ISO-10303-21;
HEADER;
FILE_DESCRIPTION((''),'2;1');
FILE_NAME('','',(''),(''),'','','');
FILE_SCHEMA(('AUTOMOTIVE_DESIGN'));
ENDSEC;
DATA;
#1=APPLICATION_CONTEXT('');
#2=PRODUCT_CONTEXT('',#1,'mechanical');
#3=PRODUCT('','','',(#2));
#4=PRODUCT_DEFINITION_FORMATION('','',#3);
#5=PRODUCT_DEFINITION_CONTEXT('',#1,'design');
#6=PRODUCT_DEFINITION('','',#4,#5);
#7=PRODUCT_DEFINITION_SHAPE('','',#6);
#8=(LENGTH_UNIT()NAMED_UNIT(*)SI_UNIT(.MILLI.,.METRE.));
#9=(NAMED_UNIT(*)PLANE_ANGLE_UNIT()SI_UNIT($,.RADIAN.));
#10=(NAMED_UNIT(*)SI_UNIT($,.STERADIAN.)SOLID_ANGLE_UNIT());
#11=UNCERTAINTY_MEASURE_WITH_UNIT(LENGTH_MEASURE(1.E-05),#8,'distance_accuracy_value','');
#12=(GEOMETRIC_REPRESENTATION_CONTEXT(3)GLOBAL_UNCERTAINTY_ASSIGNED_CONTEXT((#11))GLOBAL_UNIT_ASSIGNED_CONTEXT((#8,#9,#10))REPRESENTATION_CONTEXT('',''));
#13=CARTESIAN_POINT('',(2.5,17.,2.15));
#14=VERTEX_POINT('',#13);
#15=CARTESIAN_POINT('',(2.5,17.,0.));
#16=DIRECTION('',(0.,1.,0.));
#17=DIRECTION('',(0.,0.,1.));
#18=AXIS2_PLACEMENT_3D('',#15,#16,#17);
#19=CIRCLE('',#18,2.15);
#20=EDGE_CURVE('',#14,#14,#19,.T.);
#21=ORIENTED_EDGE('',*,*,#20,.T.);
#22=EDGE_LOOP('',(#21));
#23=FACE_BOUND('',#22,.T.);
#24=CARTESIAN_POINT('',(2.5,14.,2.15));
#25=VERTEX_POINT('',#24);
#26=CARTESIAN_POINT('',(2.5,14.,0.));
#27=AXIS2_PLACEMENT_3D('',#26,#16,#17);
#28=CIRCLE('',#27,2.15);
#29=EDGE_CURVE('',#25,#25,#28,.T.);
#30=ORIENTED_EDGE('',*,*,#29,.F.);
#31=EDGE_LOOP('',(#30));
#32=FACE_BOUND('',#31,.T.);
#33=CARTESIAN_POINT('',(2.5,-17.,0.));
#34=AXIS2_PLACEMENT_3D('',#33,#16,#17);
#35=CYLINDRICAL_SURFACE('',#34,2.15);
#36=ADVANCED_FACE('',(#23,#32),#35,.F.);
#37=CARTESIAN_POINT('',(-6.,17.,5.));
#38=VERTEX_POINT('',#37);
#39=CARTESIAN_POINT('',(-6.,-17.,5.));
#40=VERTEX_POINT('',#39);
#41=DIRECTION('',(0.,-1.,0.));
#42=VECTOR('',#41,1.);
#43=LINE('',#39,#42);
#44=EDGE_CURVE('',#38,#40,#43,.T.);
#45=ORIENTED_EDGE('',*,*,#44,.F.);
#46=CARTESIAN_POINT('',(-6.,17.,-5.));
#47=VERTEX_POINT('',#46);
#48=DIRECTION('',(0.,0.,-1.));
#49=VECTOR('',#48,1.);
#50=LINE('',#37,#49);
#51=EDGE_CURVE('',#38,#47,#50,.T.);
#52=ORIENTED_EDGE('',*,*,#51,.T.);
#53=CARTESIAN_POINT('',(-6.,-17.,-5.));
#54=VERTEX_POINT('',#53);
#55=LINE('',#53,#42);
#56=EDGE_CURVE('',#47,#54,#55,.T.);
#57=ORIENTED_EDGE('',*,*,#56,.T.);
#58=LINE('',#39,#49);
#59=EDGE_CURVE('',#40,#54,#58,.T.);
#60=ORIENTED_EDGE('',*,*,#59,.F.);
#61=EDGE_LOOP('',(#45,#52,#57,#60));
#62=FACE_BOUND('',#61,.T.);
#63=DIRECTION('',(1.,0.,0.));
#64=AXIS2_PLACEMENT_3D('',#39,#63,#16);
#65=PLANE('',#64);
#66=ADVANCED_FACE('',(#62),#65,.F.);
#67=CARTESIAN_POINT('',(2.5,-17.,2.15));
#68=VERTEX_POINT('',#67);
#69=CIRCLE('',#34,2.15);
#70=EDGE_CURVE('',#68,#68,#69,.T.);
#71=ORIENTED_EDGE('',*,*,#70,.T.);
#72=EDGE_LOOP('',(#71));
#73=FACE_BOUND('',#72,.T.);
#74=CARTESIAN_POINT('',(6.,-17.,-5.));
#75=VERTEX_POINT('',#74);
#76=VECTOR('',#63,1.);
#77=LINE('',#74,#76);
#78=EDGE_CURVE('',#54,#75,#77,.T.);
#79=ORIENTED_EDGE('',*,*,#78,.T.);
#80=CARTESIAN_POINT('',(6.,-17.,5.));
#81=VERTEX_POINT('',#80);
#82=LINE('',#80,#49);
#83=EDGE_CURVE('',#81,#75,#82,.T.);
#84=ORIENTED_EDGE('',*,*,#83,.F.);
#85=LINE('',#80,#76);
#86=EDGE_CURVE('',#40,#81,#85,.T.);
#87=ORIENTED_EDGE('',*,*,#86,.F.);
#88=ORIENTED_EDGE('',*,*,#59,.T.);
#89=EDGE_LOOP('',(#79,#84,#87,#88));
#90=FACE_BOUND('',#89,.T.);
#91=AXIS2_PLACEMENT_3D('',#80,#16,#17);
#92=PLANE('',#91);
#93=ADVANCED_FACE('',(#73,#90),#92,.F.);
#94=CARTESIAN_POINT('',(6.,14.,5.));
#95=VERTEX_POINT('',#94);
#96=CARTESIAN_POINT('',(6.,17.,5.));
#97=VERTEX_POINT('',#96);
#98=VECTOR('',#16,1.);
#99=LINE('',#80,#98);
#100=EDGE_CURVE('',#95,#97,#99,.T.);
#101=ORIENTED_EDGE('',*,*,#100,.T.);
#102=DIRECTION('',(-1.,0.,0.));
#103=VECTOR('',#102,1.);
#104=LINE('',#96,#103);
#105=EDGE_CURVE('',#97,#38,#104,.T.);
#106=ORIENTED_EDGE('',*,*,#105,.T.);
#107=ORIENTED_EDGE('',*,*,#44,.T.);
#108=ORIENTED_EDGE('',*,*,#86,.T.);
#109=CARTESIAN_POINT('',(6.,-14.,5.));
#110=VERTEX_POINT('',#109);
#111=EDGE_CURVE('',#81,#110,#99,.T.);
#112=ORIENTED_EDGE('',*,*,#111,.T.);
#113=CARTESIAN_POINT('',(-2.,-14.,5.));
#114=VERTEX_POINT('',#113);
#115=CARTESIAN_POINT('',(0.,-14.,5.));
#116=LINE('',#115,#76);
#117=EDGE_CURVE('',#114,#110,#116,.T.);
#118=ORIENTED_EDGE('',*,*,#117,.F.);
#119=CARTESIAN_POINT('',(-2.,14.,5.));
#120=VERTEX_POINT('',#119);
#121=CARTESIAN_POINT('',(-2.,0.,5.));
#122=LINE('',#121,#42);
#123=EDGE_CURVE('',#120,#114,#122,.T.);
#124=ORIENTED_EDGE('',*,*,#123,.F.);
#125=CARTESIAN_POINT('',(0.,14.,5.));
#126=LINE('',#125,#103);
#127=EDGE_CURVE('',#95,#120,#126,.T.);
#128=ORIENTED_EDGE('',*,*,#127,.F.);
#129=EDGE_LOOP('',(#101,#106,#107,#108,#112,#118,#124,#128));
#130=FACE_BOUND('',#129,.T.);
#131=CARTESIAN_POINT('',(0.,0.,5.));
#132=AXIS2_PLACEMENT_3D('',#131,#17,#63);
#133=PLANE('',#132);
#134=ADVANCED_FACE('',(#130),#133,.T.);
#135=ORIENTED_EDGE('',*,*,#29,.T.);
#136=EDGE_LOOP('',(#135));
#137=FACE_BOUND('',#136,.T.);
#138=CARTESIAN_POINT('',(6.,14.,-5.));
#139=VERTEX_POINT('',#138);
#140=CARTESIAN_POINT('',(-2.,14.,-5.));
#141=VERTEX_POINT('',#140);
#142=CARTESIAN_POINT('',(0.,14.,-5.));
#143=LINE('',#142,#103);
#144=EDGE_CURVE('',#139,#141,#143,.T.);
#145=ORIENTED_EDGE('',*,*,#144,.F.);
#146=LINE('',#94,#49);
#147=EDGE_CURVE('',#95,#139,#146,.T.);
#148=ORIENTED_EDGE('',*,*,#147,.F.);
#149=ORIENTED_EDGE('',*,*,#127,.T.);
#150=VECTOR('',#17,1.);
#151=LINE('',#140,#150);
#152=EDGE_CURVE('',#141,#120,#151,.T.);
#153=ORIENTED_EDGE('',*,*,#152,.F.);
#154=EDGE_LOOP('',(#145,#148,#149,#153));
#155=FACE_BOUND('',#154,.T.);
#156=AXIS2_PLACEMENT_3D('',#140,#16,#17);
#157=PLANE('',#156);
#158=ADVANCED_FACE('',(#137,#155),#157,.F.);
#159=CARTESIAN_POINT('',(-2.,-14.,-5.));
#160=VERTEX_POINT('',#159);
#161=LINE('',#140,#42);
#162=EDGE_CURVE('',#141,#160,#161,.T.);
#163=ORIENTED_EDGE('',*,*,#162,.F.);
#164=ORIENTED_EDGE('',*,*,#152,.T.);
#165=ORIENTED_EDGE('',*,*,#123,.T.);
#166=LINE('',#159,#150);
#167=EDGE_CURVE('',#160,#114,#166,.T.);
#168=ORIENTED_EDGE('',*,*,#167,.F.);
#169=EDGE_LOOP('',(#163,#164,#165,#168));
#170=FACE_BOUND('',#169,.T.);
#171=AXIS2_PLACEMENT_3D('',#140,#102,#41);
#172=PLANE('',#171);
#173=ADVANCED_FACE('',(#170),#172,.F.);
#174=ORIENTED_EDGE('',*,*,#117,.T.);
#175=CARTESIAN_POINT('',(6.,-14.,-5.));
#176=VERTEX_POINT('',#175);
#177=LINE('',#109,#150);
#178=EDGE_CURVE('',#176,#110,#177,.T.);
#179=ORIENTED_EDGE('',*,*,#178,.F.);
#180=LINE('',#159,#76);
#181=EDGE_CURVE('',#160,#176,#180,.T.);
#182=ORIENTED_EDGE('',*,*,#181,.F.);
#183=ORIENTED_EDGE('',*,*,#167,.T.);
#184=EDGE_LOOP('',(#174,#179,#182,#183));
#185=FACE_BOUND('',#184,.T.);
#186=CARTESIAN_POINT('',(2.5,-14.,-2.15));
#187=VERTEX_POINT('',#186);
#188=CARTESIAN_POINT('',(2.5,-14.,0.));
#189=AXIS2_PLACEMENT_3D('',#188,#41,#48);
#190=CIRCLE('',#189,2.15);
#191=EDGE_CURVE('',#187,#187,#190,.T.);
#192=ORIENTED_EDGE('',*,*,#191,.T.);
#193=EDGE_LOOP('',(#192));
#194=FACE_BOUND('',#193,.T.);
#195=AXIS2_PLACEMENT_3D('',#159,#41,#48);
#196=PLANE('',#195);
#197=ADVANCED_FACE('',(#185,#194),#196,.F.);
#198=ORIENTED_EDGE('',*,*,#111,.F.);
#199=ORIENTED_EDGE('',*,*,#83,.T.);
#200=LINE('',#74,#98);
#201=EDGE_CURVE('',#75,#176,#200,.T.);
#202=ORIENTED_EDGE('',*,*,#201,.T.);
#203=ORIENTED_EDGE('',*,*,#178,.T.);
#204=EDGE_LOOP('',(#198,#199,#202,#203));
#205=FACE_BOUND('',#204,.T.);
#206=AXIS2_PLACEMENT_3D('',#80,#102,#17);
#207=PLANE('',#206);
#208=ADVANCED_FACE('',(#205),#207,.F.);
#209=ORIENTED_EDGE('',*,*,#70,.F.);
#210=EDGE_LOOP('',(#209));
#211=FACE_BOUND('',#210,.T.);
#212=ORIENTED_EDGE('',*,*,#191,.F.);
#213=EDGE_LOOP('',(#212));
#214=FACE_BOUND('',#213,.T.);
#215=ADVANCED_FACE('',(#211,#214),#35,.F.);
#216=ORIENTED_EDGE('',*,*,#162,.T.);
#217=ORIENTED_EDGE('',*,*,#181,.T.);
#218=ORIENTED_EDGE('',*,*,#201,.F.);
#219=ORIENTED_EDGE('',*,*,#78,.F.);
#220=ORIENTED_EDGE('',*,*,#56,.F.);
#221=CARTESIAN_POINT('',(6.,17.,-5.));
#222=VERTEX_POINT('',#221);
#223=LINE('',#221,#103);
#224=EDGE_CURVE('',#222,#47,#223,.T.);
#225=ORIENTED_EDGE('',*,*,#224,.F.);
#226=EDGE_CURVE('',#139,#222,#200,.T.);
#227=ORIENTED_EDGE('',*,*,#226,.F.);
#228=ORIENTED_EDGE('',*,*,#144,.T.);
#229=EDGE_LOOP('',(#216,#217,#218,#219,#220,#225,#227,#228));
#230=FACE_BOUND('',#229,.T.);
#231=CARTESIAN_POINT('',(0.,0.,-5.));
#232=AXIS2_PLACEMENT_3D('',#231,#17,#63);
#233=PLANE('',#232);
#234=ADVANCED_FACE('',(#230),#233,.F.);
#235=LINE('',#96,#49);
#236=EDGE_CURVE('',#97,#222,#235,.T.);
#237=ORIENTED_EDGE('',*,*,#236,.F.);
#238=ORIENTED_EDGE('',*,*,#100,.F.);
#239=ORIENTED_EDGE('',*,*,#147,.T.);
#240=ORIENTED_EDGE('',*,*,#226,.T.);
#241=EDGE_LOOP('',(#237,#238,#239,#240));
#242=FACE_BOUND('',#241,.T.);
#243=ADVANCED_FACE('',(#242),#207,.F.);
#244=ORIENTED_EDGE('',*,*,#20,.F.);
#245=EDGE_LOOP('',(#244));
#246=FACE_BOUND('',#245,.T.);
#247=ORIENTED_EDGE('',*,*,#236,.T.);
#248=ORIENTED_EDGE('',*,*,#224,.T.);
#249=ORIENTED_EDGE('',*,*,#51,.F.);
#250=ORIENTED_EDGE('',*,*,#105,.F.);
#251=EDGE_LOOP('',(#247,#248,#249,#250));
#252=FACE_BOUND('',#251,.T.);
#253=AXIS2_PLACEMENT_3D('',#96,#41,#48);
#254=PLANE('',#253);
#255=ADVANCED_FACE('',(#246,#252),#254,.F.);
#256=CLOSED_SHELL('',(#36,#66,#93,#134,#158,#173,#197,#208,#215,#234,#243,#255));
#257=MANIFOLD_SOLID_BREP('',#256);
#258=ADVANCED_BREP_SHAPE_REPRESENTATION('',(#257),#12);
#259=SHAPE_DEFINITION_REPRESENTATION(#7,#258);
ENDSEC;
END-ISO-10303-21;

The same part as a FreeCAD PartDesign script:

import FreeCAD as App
import Part
import Sketcher
Q = App.Units.Quantity


def add_polygon(sketch, points):
    """Adds a closed chain of lines whose ends are joined by coincident constraints."""
    first, n = sketch.GeometryCount, len(points)
    for a, b in zip(points, points[1:] + points[:1]):
        sketch.addGeometry(Part.LineSegment(App.Vector(*a, 0), App.Vector(*b, 0)), False)
    for i in range(n):
        sketch.addConstraint(Sketcher.Constraint("Coincident", first + i, 2, first + (i + 1) % n, 1))

doc = App.newDocument("Part")
params = doc.addObject("Spreadsheet::Sheet", "Params")
for row, (alias, value) in enumerate([
    ("sketch1_width", "12 mm"),
    ("sketch1_height", "34 mm"),
    ("pad1_length", "10 mm"),
    ("sketch2_width", "16 mm"),
    ("sketch2_height", "28 mm"),
    ("sketch3_diameter", "4.3 mm"),
], start=1):
    params.set(f"A{row}", alias)
    params.set(f"B{row}", "=" + value)
    params.setAlias(f"B{row}", alias)

body = doc.addObject("PartDesign::Body", "Body")

# Sketch on XY plane
sketch1 = body.newObject("Sketcher::SketchObject", "Sketch")
sketch1.AttachmentSupport = (doc.getObject("XY_Plane"), [""])
sketch1.MapMode = "FlatFace"
add_polygon(sketch1, [(-6, 17), (-6, -17), (6, -17), (6, 17)])  # lines 0-3
sketch1.addConstraint(Sketcher.Constraint("Vertical", 0))
sketch1.addConstraint(Sketcher.Constraint("Horizontal", 1))
sketch1.addConstraint(Sketcher.Constraint("Vertical", 2))
sketch1.addConstraint(Sketcher.Constraint("Horizontal", 3))
sketch1.addConstraint(Sketcher.Constraint("Symmetric", 0, 2, 2, 2, -1, 1))
sketch1.addConstraint(Sketcher.Constraint("DistanceX", 1, 1, 1, 2, Q("12 mm")))
sketch1.addConstraint(Sketcher.Constraint("DistanceY", 0, 2, 0, 1, Q("34 mm")))
sketch1.setExpression("Constraints[9]", "Params.sketch1_width")
sketch1.setExpression("Constraints[10]", "Params.sketch1_height")
pad1 = body.newObject("PartDesign::Pad", "Pad")
pad1.Profile = sketch1
pad1.setExpression("Length", "Params.pad1_length")
pad1.Midplane = True

# Sketch on XY plane
sketch2 = body.newObject("Sketcher::SketchObject", "Sketch001")
sketch2.AttachmentSupport = (doc.getObject("XY_Plane"), [""])
sketch2.MapMode = "FlatFace"
sketch2.AttachmentOffset = App.Placement(App.Vector(0, 0, 5), App.Rotation())
add_polygon(sketch2, [(-2, 14), (-2, -14), (14, -14), (14, 14)])  # lines 0-3
sketch2.addConstraint(Sketcher.Constraint("Vertical", 0))
sketch2.addConstraint(Sketcher.Constraint("Horizontal", 1))
sketch2.addConstraint(Sketcher.Constraint("Vertical", 2))
sketch2.addConstraint(Sketcher.Constraint("Horizontal", 3))
sketch2.addConstraint(Sketcher.Constraint("DistanceX", 1, 1, 1, 2, Q("16 mm")))
sketch2.addConstraint(Sketcher.Constraint("DistanceY", 0, 2, 0, 1, Q("28 mm")))
sketch2.addConstraint(Sketcher.Constraint("DistanceX", 0, 2, -1, 1, Q("2 mm")))
sketch2.addConstraint(Sketcher.Constraint("DistanceY", 0, 2, -1, 1, Q("14 mm")))
sketch2.setExpression("Constraints[8]", "Params.sketch2_width")
sketch2.setExpression("Constraints[9]", "Params.sketch2_height")
pocket1 = body.newObject("PartDesign::Pocket", "Pocket")
pocket1.Profile = sketch2
pocket1.Type = "ThroughAll"
pocket1.Midplane = True

# Sketch on XZ plane
sketch3 = body.newObject("Sketcher::SketchObject", "Sketch002")
sketch3.AttachmentSupport = (doc.getObject("XZ_Plane"), [""])
sketch3.MapMode = "FlatFace"
sketch3.AttachmentOffset = App.Placement(App.Vector(0, 0, -17), App.Rotation())
sketch3.addGeometry(Part.Circle(App.Vector(2.5, 0, 0), App.Vector(0, 0, 1), 2.1), False)
sketch3.addConstraint(Sketcher.Constraint("PointOnObject", 0, 3, -1))
sketch3.addConstraint(Sketcher.Constraint("Diameter", 0, Q("4.3 mm")))
sketch3.addConstraint(Sketcher.Constraint("DistanceX", -1, 1, 0, 3, Q("2.5 mm")))
sketch3.setExpression("Constraints[1]", "Params.sketch3_diameter")
pocket2 = body.newObject("PartDesign::Pocket", "Pocket001")
pocket2.Profile = sketch3
pocket2.Type = "ThroughAll"
pocket2.Reversed = True

doc.recompute()
